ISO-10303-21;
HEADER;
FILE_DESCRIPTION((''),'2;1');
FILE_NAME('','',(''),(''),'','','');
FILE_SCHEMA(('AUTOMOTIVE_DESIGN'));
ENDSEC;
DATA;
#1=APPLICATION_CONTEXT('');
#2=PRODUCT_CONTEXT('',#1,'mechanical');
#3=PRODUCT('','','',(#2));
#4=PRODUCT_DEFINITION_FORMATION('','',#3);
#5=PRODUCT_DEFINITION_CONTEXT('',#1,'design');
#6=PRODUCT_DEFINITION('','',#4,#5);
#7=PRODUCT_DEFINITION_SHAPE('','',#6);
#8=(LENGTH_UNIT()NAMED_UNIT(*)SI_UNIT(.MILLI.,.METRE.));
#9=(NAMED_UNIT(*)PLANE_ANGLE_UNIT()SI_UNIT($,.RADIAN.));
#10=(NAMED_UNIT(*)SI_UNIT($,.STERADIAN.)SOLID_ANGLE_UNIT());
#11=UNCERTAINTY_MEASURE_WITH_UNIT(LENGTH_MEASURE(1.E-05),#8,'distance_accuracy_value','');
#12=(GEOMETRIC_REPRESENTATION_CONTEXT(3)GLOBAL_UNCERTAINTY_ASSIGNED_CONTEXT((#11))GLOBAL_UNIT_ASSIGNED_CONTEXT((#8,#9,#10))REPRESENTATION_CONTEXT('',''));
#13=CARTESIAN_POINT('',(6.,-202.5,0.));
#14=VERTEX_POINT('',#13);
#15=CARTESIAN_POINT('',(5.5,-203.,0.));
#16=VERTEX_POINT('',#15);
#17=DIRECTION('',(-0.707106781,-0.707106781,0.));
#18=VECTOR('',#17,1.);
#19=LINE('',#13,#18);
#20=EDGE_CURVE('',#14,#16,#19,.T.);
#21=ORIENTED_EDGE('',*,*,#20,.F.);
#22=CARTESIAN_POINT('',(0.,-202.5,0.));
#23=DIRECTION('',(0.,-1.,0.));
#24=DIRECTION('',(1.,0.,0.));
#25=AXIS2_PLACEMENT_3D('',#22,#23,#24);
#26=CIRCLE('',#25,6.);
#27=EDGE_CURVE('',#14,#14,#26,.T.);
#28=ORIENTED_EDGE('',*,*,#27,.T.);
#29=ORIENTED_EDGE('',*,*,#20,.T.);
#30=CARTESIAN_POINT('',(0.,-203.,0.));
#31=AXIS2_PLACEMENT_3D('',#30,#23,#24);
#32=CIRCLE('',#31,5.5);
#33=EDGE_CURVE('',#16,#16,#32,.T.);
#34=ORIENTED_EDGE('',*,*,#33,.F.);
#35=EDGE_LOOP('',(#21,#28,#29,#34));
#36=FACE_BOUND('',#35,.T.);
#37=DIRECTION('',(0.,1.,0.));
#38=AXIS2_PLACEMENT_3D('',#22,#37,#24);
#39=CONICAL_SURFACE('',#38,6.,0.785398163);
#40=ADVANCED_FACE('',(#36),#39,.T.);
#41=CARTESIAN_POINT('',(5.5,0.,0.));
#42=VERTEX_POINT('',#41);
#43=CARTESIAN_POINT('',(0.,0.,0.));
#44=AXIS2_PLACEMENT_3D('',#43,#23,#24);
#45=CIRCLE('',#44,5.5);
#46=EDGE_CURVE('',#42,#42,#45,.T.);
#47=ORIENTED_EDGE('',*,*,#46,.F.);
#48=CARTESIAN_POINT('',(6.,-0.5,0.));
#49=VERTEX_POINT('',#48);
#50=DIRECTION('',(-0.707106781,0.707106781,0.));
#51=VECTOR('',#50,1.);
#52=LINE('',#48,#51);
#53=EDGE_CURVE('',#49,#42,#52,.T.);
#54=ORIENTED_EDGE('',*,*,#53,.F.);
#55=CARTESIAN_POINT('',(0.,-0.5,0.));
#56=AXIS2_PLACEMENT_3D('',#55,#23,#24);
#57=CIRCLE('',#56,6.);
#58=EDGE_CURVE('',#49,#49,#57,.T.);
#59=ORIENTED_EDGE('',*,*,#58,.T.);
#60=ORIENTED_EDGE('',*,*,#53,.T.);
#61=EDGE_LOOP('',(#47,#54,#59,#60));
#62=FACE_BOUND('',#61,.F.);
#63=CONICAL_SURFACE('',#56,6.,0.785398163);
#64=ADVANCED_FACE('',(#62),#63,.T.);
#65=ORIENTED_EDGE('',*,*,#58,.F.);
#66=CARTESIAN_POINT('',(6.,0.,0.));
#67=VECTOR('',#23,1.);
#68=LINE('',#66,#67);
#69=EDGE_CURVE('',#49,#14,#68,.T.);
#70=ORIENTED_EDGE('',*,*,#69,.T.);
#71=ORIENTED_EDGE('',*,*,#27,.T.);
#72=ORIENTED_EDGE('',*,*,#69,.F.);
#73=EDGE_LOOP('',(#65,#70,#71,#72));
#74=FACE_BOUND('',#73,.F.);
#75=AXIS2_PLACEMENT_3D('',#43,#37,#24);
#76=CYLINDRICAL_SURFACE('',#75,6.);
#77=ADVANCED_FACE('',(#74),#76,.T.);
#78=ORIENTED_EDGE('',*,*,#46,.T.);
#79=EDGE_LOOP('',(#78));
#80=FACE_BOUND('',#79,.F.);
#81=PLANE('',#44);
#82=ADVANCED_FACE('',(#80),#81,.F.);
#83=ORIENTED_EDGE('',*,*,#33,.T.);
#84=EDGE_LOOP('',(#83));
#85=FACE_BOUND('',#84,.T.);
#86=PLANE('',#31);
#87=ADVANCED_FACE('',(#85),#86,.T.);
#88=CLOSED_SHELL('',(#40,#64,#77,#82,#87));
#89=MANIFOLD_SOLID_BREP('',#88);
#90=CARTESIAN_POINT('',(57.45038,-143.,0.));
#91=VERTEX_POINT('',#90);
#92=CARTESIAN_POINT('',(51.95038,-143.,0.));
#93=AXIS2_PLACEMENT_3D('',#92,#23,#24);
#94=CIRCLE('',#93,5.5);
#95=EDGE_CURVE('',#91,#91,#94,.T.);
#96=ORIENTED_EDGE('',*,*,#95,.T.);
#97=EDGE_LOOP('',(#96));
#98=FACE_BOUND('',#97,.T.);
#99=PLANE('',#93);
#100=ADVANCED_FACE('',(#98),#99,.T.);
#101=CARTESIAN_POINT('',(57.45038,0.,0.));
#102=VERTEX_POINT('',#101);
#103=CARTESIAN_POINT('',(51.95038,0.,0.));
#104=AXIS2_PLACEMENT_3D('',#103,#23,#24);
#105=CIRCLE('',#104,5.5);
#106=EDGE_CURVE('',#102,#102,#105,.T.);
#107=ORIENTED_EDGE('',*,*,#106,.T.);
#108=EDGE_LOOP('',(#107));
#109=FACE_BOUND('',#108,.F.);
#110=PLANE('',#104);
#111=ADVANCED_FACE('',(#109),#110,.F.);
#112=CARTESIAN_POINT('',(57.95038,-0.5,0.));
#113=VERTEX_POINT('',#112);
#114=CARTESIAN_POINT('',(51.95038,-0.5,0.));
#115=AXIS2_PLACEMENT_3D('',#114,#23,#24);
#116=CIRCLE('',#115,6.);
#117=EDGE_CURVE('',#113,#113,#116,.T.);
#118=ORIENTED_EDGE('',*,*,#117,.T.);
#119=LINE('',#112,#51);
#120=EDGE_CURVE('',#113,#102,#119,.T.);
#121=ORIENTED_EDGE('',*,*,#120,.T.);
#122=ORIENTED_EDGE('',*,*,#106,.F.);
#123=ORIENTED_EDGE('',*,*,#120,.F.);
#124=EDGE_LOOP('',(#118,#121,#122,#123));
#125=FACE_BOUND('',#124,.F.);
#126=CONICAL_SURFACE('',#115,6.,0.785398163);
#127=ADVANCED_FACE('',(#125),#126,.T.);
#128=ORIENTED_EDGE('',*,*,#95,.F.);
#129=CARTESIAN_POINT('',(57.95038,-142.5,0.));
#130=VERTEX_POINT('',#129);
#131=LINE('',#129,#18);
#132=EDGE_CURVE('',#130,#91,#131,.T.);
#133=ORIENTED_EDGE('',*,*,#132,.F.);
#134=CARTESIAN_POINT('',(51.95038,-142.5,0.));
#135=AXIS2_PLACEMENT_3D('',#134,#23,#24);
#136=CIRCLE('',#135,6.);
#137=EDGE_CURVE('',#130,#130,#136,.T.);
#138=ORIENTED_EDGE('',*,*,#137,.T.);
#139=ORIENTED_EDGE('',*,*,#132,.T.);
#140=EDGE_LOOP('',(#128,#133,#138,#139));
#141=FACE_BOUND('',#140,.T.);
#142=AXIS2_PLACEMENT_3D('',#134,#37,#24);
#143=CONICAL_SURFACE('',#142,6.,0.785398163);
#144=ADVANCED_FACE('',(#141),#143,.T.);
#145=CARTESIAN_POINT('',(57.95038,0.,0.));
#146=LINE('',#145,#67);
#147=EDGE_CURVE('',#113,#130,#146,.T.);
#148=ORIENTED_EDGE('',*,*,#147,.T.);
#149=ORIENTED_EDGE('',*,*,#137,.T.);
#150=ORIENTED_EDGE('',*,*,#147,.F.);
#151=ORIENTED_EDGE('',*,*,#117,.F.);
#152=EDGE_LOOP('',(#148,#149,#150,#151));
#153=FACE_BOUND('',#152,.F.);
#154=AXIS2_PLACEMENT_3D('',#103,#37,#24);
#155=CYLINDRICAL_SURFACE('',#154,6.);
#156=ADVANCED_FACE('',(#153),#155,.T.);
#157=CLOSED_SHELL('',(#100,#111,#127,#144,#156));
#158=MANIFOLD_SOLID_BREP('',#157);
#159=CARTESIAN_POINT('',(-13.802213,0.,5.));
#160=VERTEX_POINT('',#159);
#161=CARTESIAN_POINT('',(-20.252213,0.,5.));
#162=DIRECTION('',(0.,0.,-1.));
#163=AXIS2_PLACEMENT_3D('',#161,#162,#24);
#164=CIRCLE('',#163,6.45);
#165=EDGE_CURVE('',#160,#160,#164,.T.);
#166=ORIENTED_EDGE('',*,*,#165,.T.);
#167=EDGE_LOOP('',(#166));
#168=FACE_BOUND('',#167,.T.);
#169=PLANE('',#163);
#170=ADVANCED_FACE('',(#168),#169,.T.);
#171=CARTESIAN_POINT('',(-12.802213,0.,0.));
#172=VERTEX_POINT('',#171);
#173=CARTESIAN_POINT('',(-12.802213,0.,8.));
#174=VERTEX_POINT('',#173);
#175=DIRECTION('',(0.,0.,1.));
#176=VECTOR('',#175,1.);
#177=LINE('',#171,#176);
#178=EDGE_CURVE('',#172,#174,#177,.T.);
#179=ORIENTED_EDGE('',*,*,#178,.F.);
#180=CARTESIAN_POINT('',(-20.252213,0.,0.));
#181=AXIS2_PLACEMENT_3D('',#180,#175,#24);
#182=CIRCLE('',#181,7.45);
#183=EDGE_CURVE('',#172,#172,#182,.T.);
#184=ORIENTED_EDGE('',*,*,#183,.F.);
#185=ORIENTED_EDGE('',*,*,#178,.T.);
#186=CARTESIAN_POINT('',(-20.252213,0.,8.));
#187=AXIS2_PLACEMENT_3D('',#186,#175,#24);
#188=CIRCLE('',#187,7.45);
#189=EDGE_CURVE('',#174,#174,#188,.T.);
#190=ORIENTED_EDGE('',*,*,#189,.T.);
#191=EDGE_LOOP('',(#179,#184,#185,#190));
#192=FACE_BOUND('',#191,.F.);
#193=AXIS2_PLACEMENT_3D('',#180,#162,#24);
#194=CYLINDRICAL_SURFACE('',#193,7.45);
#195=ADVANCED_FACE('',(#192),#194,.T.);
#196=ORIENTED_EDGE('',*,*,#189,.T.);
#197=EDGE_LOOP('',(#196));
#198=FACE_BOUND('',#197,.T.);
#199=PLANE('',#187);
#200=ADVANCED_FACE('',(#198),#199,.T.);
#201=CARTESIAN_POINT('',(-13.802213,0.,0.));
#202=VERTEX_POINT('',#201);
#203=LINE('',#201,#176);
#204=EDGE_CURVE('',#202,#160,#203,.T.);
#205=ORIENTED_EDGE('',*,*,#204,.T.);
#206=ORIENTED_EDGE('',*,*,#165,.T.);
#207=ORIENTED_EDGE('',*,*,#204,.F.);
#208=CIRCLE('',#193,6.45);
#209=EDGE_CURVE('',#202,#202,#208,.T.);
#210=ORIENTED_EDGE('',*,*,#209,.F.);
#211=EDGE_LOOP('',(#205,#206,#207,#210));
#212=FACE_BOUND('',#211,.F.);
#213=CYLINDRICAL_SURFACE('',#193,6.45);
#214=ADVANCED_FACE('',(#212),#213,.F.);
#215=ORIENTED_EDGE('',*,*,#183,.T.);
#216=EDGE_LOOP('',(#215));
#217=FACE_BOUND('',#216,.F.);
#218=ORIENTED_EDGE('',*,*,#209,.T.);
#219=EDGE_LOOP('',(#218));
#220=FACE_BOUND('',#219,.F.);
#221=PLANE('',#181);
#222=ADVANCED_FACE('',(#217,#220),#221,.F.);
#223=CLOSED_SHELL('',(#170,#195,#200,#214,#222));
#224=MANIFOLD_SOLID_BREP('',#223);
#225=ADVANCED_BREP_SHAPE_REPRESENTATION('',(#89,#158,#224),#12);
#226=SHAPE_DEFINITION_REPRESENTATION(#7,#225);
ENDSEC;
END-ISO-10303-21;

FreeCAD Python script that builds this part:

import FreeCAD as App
import Part
import Sketcher
from FreeCAD import Vector


def edges_at(feature, points):
    """Names of the edges that pass closest to the given points."""
    edges = feature.Shape.Edges
    near = lambda p: min(range(len(edges)), key=lambda i: edges[i].distToShape(Part.Vertex(*p))[0])
    return sorted({f"Edge{near(p) + 1}" for p in points})

doc = App.newDocument("Part")
body = doc.addObject("PartDesign::Body", "Body")

sketch1 = body.newObject("Sketcher::SketchObject", "Sketch")
sketch1.AttachmentSupport = (doc.getObject("XZ_Plane"), [""])
sketch1.MapMode = "FlatFace"
sketch1.addGeometry(Part.Circle(Vector(0, 0, 0), Vector(0, 0, 1), 6), False)
sketch1.addConstraint([
    Sketcher.Constraint("Coincident", 0, 3, -1, 1),
    Sketcher.Constraint("Diameter", 0, 12.0),
])
pad1 = body.newObject("PartDesign::Pad", "Pad")
pad1.Profile = sketch1
pad1.Length = 203
doc.recompute()

chamfer = body.newObject("PartDesign::Chamfer", "Chamfer")
chamfer.Base = (pad1, edges_at(pad1, [(-6, -203, 0), (-6, 0, 0)]))
chamfer.Size = 0.5
body2 = doc.addObject("PartDesign::Body", "Body001")

sketch2 = body2.newObject("Sketcher::SketchObject", "Sketch001")
sketch2.AttachmentSupport = (doc.getObject("XZ_Plane001"), [""])
sketch2.MapMode = "FlatFace"
sketch2.addGeometry(Part.Circle(Vector(51.95038, 0, 0), Vector(0, 0, 1), 6), False)
sketch2.addConstraint([
    Sketcher.Constraint("PointOnObject", 0, 3, -1),
    Sketcher.Constraint("Diameter", 0, 12.0),
    Sketcher.Constraint("DistanceX", -1, 1, 0, 3, 51.95038),
])
pad2 = body2.newObject("PartDesign::Pad", "Pad001")
pad2.Profile = sketch2
pad2.Length = 143
doc.recompute()

chamfer2 = body2.newObject("PartDesign::Chamfer", "Chamfer001")
chamfer2.Base = (pad2, edges_at(pad2, [(45.95, -143, 0), (45.95, 0, 0)]))
chamfer2.Size = 0.5
body3 = doc.addObject("PartDesign::Body", "Body002")

sketch3 = body3.newObject("Sketcher::SketchObject", "Sketch002")
sketch3.AttachmentSupport = (doc.getObject("XY_Plane002"), [""])
sketch3.MapMode = "FlatFace"
sketch3.addGeometry(Part.Circle(Vector(-20.252213, 0, 0), Vector(0, 0, 1), 7.45), False)
sketch3.addConstraint([
    Sketcher.Constraint("PointOnObject", 0, 3, -1),
    Sketcher.Constraint("Diameter", 0, 14.9),
    Sketcher.Constraint("DistanceX", 0, 3, -1, 1, 20.252213),
])
pad3 = body3.newObject("PartDesign::Pad", "Pad002")
pad3.Profile = sketch3
pad3.Length = 8

sketch4 = body3.newObject("Sketcher::SketchObject", "Sketch003")
sketch4.AttachmentSupport = (doc.getObject("XY_Plane002"), [""])
sketch4.MapMode = "FlatFace"
sketch4.addGeometry(Part.Circle(Vector(-20.252213, 0, 0), Vector(0, 0, 1), 6.45), False)
sketch4.addConstraint([
    Sketcher.Constraint("PointOnObject", 0, 3, -1),
    Sketcher.Constraint("Diameter", 0, 12.9),
    Sketcher.Constraint("DistanceX", 0, 3, -1, 1, 20.252213),
])
pocket1 = body3.newObject("PartDesign::Pocket", "Pocket")
pocket1.Profile = sketch4
pocket1.Length = 5
pocket1.Reversed = True

doc.recompute()
